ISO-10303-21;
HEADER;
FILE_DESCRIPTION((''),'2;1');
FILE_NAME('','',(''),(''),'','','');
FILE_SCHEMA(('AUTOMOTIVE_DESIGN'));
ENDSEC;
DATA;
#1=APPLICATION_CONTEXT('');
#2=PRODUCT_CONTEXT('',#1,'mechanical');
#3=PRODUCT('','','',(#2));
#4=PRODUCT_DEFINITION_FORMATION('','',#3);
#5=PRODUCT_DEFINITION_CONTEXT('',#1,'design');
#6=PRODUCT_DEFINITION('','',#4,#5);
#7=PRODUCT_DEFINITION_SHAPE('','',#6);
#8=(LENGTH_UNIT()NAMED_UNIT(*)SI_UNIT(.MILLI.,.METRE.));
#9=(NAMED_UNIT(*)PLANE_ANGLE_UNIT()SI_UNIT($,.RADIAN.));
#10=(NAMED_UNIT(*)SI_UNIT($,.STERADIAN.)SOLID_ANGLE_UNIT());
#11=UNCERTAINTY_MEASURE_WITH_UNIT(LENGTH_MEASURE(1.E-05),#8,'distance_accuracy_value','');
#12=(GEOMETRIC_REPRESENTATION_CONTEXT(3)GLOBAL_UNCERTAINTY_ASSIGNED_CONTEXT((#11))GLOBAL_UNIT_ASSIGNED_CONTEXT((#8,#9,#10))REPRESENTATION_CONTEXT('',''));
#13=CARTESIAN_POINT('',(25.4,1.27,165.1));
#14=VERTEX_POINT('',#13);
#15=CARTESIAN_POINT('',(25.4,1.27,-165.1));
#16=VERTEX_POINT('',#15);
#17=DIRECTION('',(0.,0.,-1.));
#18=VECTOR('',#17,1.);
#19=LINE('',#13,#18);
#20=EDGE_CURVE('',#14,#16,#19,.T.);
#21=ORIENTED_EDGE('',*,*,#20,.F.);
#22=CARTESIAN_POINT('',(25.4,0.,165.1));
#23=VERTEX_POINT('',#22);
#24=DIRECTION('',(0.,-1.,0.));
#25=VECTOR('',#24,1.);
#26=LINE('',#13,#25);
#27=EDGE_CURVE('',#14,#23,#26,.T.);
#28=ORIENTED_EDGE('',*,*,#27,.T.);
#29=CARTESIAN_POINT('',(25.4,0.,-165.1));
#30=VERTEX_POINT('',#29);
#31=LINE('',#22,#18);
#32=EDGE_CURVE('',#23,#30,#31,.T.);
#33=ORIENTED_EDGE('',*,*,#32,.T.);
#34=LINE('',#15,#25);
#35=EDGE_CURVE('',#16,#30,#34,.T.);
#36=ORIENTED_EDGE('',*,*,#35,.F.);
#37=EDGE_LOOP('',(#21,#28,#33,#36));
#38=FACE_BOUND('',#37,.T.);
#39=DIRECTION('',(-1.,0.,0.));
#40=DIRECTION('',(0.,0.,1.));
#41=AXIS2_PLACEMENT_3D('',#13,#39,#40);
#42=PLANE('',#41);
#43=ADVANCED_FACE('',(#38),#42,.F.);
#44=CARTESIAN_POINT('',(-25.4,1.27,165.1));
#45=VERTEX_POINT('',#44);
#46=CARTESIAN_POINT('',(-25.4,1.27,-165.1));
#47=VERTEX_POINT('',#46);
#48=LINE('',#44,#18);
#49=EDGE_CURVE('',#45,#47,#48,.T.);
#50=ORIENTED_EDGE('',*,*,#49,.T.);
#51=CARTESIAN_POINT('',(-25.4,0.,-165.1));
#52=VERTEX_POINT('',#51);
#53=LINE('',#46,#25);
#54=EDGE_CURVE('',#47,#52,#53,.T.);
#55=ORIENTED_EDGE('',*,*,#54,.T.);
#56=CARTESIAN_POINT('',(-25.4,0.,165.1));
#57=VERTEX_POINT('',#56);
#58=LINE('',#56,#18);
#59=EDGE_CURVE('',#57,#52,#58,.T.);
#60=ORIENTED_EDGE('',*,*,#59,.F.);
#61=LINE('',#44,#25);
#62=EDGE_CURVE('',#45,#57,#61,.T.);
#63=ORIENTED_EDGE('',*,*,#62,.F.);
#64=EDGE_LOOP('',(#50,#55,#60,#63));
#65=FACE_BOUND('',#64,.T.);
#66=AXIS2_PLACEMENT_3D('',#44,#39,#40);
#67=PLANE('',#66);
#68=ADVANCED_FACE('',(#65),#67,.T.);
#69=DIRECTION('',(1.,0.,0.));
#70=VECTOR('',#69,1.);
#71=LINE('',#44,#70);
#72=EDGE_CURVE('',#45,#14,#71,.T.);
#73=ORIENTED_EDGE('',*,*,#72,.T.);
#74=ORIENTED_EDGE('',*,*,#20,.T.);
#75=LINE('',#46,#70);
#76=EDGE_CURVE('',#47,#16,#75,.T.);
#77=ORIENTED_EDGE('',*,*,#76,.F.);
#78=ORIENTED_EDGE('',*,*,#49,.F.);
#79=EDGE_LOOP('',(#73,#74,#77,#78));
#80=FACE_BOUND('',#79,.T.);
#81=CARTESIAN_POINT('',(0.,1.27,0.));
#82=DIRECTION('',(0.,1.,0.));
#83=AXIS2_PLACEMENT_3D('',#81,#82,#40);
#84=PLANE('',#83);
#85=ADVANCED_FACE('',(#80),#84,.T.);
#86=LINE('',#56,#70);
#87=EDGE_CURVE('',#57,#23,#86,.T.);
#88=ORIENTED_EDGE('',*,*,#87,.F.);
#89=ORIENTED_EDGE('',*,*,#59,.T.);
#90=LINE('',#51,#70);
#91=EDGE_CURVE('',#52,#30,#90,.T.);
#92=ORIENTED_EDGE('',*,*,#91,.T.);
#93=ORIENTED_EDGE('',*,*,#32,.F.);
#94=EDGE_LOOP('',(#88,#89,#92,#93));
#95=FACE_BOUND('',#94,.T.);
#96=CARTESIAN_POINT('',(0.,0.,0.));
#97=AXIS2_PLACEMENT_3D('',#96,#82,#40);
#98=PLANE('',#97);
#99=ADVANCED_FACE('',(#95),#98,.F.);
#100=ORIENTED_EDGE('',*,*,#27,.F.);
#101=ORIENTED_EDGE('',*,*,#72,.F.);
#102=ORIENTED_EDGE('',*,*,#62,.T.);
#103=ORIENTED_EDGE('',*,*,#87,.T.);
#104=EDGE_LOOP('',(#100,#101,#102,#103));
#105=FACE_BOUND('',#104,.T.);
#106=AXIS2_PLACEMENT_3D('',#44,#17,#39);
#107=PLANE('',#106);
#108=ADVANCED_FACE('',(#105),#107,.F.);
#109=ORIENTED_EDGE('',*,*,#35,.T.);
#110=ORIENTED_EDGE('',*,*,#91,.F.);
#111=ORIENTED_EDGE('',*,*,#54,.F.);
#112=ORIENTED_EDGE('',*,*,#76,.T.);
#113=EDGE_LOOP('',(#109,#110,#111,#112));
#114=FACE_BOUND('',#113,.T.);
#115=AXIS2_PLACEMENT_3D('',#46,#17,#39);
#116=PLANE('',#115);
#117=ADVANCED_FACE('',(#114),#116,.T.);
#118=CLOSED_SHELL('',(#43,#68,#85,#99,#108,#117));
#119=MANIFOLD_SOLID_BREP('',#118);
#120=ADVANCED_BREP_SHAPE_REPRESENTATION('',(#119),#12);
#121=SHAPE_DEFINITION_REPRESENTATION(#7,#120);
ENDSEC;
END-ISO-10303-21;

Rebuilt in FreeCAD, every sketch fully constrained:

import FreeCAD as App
import Part
import Sketcher
from FreeCAD import Vector
Q = App.Units.Quantity


def add_polygon(sketch, points):
    """Adds a closed chain of lines whose ends are joined by coincident constraints."""
    first, n = sketch.GeometryCount, len(points)
    for a, b in zip(points, points[1:] + points[:1]):
        sketch.addGeometry(Part.LineSegment(App.Vector(*a, 0), App.Vector(*b, 0)), False)
    for i in range(n):
        sketch.addConstraint(Sketcher.Constraint("Coincident", first + i, 2, first + (i + 1) % n, 1))

doc = App.newDocument("Part")
body = doc.addObject("PartDesign::Body", "Body")

sketch1 = body.newObject("Sketcher::SketchObject", "Sketch")
sketch1.AttachmentSupport = (doc.getObject("XZ_Plane"), [""])
sketch1.MapMode = "FlatFace"
add_polygon(sketch1, [(-25, -165), (-25, 165), (25, 165), (25, -165)])
sketch1.addConstraint([
    Sketcher.Constraint("Vertical", 0),
    Sketcher.Constraint("Horizontal", 1),
    Sketcher.Constraint("Vertical", 2),
    Sketcher.Constraint("Horizontal", 3),
    Sketcher.Constraint("Symmetric", 0, 2, 2, 2, -1, 1),
    Sketcher.Constraint("DistanceX", 1, 1, 1, 2, Q("2 in")),
    Sketcher.Constraint("DistanceY", 0, 1, 0, 2, Q("13 in")),
])
pad1 = body.newObject("PartDesign::Pad", "Pad")
pad1.Profile = sketch1
pad1.Length = Q("0.05 in")
pad1.Reversed = True

doc.recompute()
